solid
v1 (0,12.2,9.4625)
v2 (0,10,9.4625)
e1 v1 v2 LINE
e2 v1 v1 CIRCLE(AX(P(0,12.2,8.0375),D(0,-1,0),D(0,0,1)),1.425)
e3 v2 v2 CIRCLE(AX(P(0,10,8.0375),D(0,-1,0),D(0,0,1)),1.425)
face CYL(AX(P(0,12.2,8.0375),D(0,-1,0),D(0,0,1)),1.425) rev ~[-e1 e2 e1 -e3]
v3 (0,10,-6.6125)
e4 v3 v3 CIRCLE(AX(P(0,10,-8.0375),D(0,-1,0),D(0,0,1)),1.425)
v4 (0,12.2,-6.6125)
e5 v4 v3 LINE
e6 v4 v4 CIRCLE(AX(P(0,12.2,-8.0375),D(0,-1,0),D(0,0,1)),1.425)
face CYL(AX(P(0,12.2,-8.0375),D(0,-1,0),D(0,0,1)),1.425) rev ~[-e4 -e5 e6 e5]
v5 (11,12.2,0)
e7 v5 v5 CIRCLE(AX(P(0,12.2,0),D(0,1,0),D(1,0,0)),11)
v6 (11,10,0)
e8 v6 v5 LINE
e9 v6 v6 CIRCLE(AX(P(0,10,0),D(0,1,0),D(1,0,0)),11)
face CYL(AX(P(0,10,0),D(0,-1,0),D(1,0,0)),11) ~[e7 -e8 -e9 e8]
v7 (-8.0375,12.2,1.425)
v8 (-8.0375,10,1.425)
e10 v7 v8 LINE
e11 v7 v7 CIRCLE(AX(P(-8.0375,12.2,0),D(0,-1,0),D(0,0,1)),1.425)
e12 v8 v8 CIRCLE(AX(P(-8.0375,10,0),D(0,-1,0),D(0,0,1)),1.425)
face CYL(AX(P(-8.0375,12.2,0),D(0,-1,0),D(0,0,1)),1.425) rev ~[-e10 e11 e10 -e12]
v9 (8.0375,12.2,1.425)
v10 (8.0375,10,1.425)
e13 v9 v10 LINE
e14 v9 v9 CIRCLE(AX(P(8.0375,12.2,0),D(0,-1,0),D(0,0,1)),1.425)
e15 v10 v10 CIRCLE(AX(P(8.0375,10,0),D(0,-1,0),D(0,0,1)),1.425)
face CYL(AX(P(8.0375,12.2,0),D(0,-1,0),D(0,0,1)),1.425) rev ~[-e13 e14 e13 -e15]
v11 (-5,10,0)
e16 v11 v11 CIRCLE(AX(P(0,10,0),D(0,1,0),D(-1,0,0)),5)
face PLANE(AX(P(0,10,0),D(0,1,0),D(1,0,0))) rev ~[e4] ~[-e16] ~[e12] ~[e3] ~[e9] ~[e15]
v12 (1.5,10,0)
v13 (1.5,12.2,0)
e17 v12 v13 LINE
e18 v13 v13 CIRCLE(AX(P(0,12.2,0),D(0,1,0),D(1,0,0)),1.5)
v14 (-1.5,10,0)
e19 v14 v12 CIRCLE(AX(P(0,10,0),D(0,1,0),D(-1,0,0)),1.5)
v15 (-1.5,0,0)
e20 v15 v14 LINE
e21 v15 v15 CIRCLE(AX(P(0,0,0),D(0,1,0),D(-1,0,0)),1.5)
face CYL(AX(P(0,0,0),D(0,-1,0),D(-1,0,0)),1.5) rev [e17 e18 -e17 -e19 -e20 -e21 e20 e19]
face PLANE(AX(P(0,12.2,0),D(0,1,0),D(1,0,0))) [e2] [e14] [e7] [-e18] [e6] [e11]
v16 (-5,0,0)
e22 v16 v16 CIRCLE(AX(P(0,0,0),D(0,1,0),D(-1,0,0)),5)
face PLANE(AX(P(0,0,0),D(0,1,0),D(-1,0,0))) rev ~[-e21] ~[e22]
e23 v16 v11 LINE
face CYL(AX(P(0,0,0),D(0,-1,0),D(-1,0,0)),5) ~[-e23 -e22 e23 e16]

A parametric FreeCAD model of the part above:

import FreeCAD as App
import Part
import Sketcher

V = App.Vector
Q = App.Units.Quantity

doc = App.newDocument("Part")
body = doc.addObject("PartDesign::Body", "Body")

# Sketch on XZ plane
sketch1 = body.newObject("Sketcher::SketchObject", "Sketch")
sketch1.AttachmentSupport = (doc.getObject("XZ_Plane"), [""])
sketch1.MapMode = "FlatFace"
sketch1.addGeometry([
    Part.Circle(V(0, 0, 0), V(0, 0, 1), 5),
    Part.Circle(V(0, 0, 0), V(0, 0, 1), 1.5),
], False)
sketch1.addConstraint([
    Sketcher.Constraint("Coincident", 0, 3, -1, 1),
    Sketcher.Constraint("Coincident", 1, 3, -1, 1),
    Sketcher.Constraint("Diameter", 0, Q("10 mm")),
    Sketcher.Constraint("Diameter", 1, Q("3 mm")),
])
pad1 = body.newObject("PartDesign::Pad", "Pad")
pad1.Profile = sketch1
pad1.Length = 10
pad1.Reversed = True

# Sketch on XZ plane
sketch2 = body.newObject("Sketcher::SketchObject", "Sketch001")
sketch2.AttachmentSupport = (doc.getObject("XZ_Plane"), [""])
sketch2.MapMode = "FlatFace"
sketch2.AttachmentOffset = App.Placement(V(0, 0, -10), App.Rotation())
sketch2.addGeometry([
    Part.Circle(V(0, 0, 0), V(0, 0, 1), 11),
    Part.Circle(V(0, 0, 0), V(0, 0, 1), 1.5),
], False)
sketch2.addConstraint([
    Sketcher.Constraint("Coincident", 0, 3, -1, 1),
    Sketcher.Constraint("Coincident", 1, 3, -1, 1),
    Sketcher.Constraint("Diameter", 0, Q("22 mm")),
    Sketcher.Constraint("Diameter", 1, Q("3 mm")),
])
pad2 = body.newObject("PartDesign::Pad", "Pad001")
pad2.Profile = sketch2
pad2.Length = 2.2
pad2.Reversed = True

# Sketch on XZ plane
sketch3 = body.newObject("Sketcher::SketchObject", "Sketch002")
sketch3.AttachmentSupport = (doc.getObject("XZ_Plane"), [""])
sketch3.MapMode = "FlatFace"
sketch3.AttachmentOffset = App.Placement(V(0, 0, -12.2), App.Rotation())
sketch3.addGeometry([
    Part.Circle(V(0, 8, 0), V(0, 0, 1), 1.4),
    Part.Circle(V(-8, 0, 0), V(0, 0, 1), 1.4),
    Part.Circle(V(0, -8, 0), V(0, 0, 1), 1.4),
    Part.Circle(V(8, 0, 0), V(0, 0, 1), 1.4),
], False)
sketch3.addConstraint([
    Sketcher.Constraint("Equal", 0, 1),
    Sketcher.Constraint("Equal", 1, 2),
    Sketcher.Constraint("Equal", 2, 3),
    Sketcher.Constraint("Symmetric", 0, 3, 2, 3, -1, 1),
    Sketcher.Constraint("Symmetric", 1, 3, 3, 3, -1, 1),
    Sketcher.Constraint("PointOnObject", 0, 3, -2),
    Sketcher.Constraint("PointOnObject", 1, 3, -1),
    Sketcher.Constraint("Diameter", 0, Q("2.85 mm")),
    Sketcher.Constraint("DistanceY", 2, 3, 0, 3, Q("16.075 mm")),
    Sketcher.Constraint("DistanceX", 1, 3, 3, 3, Q("16.075 mm")),
])
doc.recompute()
hole = body.newObject("PartDesign::Hole", "Hole")
hole.Profile = sketch3
hole.ThreadType = "None"
hole.Diameter = 2.85
hole.DepthType = "ThroughAll"
hole.Reversed = True

doc.recompute()
